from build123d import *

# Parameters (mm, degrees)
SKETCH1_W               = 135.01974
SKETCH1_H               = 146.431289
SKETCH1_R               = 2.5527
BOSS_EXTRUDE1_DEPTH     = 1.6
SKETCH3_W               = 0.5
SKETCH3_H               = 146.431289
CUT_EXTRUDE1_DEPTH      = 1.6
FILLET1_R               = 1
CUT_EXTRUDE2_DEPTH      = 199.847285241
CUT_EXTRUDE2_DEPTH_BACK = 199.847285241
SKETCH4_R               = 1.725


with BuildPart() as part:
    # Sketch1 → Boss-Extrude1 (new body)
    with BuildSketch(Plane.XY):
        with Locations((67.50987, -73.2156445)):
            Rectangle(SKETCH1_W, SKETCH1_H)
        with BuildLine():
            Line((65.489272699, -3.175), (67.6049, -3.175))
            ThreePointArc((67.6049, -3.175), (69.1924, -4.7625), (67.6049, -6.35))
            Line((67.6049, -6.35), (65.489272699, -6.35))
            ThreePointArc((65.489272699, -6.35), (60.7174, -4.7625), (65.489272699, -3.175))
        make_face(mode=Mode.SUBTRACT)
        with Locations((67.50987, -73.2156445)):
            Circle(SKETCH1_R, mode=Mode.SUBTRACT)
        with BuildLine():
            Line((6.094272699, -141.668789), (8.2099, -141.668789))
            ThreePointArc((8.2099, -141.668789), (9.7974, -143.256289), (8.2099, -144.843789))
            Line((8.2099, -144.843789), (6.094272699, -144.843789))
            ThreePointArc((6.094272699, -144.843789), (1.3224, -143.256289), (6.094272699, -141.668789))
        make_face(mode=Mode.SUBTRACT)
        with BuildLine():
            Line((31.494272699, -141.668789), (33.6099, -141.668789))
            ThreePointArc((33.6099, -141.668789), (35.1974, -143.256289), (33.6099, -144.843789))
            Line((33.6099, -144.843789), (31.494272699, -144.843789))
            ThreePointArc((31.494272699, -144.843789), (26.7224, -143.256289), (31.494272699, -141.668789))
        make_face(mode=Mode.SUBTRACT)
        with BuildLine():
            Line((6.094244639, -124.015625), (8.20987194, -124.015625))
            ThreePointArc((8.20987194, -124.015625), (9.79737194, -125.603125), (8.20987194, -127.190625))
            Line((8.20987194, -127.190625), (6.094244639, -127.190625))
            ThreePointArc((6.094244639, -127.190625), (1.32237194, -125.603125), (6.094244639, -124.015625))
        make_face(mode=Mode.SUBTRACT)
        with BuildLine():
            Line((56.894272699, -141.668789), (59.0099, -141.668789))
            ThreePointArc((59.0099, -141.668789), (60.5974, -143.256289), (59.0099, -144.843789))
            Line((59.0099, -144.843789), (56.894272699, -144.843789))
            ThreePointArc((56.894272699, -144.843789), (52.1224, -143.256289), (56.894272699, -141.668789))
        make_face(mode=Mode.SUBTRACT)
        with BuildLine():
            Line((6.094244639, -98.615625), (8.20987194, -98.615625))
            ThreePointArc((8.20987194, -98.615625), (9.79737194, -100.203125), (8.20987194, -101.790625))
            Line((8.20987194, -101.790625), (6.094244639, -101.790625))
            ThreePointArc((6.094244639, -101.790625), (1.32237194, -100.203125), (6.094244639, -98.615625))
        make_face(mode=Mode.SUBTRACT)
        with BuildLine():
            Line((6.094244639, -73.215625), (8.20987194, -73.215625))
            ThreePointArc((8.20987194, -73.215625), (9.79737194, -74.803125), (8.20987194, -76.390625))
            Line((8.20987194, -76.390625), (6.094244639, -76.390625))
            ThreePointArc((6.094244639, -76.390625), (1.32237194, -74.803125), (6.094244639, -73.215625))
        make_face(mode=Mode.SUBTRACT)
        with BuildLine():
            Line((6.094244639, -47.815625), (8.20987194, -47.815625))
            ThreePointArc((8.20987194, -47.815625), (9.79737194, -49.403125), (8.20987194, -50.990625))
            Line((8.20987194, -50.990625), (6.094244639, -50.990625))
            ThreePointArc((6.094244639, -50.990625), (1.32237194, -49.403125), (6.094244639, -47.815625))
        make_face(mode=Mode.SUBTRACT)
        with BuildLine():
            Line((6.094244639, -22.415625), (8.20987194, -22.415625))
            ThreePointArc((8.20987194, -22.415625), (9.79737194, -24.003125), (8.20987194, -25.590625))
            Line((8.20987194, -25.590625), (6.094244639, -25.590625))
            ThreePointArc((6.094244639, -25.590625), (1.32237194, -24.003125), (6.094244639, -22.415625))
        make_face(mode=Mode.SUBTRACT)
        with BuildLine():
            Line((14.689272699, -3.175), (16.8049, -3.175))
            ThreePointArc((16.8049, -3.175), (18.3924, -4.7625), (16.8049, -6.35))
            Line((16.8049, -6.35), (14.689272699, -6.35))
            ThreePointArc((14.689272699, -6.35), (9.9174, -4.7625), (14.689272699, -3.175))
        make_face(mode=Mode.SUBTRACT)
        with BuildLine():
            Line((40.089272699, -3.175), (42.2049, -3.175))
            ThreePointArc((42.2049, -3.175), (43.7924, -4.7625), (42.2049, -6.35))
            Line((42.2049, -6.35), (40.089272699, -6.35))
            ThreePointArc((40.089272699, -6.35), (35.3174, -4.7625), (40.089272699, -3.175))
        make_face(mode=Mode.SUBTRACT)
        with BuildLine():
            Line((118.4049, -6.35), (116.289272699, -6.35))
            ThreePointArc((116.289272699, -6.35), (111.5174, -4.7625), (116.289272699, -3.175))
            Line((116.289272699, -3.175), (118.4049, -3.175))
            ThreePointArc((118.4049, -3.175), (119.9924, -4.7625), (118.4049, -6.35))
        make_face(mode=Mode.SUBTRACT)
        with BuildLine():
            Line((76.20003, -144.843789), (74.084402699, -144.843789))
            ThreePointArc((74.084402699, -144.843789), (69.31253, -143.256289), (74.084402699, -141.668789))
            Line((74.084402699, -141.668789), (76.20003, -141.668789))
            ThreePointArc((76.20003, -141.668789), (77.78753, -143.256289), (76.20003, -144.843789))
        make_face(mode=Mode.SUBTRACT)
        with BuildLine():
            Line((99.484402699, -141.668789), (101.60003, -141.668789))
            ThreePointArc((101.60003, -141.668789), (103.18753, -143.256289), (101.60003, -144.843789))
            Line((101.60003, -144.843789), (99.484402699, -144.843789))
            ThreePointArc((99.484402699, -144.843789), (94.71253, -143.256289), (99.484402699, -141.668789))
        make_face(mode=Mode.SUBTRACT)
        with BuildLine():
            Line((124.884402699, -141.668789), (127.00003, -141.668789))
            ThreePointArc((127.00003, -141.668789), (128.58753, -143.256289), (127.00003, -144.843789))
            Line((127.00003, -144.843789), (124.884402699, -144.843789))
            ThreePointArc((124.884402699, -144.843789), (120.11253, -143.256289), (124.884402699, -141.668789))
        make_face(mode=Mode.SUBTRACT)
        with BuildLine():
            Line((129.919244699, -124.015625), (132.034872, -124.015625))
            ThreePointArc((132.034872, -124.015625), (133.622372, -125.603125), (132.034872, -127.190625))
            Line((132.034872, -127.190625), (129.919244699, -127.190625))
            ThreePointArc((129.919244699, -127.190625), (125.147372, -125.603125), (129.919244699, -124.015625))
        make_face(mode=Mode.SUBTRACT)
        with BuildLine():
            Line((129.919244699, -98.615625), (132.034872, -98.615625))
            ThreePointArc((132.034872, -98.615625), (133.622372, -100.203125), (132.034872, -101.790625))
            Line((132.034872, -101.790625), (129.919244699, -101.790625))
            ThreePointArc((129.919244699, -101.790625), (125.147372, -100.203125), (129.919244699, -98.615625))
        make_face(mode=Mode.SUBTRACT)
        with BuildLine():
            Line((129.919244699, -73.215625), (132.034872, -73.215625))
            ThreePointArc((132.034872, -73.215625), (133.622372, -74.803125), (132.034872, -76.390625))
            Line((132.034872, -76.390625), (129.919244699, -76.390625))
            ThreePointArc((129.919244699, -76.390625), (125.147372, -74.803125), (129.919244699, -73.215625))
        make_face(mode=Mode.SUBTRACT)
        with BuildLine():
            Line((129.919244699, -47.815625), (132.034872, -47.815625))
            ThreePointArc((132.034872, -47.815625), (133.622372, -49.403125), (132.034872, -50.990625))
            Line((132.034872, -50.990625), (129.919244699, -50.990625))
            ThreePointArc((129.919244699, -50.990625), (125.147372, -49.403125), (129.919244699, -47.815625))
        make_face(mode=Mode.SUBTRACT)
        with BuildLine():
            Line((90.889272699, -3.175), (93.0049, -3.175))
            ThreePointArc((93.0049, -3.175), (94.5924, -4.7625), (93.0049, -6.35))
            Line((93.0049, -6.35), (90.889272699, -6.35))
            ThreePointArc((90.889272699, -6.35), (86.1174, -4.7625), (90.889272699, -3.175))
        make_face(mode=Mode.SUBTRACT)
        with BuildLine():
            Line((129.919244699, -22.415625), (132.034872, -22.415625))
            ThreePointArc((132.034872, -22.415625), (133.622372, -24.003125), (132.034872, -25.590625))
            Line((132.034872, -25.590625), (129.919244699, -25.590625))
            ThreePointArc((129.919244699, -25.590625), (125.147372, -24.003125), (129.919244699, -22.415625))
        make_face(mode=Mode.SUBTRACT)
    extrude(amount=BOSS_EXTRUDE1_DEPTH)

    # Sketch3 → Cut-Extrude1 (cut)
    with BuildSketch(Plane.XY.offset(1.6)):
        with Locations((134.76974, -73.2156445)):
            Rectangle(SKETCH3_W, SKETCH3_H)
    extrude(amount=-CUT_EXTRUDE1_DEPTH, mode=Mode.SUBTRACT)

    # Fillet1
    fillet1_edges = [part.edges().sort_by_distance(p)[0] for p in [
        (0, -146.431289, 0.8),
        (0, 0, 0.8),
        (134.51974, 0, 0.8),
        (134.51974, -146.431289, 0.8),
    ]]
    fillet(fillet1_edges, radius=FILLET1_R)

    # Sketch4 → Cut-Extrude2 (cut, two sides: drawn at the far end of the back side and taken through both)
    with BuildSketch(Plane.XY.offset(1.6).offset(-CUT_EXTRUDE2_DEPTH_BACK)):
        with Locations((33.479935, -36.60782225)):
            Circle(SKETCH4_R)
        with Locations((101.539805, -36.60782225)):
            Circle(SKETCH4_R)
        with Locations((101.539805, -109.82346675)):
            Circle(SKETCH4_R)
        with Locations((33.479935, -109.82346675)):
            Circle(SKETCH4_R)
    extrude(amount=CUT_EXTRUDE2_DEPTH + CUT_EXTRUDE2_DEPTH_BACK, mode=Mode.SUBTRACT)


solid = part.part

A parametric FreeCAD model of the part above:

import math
import FreeCAD as App
import Part
import Sketcher


def edges_at(feature, points):
    """Names of the edges that pass closest to the given points."""
    edges = feature.Shape.Edges
    near = lambda p: min(range(len(edges)), key=lambda i: edges[i].distToShape(Part.Vertex(*p))[0])
    return sorted({f"Edge{near(p) + 1}" for p in points})


def add_polygon(sketch, points):
    """Adds a closed chain of lines whose ends are joined by coincident constraints."""
    first, n = sketch.GeometryCount, len(points)
    for a, b in zip(points, points[1:] + points[:1]):
        sketch.addGeometry(Part.LineSegment(App.Vector(*a, 0), App.Vector(*b, 0)), False)
    for i in range(n):
        sketch.addConstraint(Sketcher.Constraint("Coincident", first + i, 2, first + (i + 1) % n, 1))

doc = App.newDocument("Part")
body = doc.addObject("PartDesign::Body", "Body")

# Sketch on XY plane
sketch1 = body.newObject("Sketcher::SketchObject", "Sketch")
sketch1.AttachmentSupport = (doc.getObject("XY_Plane"), [""])
sketch1.MapMode = "FlatFace"
add_polygon(sketch1, [(0, 0), (0, -146.431289), (135.01974, -146.431289), (135.01974, 0)])  # lines 0-3
sketch1.addGeometry(Part.ArcOfCircle(Part.Circle(App.Vector(3.9724, -143.256289, 0), App.Vector(0, 0, 1), 2.65), math.radians(36.802362), math.radians(323.197638)), False)  # 4
sketch1.addGeometry(Part.LineSegment(App.Vector(6.094273, -141.668789, 0), App.Vector(8.2099, -141.668789, 0)), False)  # 5
sketch1.addGeometry(Part.ArcOfCircle(Part.Circle(App.Vector(8.2099, -143.256289, 0), App.Vector(0, 0, 1), 1.5875), math.radians(-90), math.radians(90)), False)  # 6
sketch1.addGeometry(Part.LineSegment(App.Vector(8.2099, -144.843789, 0), App.Vector(6.094273, -144.843789, 0)), False)  # 7
sketch1.addGeometry(Part.ArcOfCircle(Part.Circle(App.Vector(29.3724, -143.256289, 0), App.Vector(0, 0, 1), 2.65), math.radians(36.802362), math.radians(323.197638)), False)  # 8
sketch1.addGeometry(Part.LineSegment(App.Vector(31.494273, -141.668789, 0), App.Vector(33.6099, -141.668789, 0)), False)  # 9
sketch1.addGeometry(Part.ArcOfCircle(Part.Circle(App.Vector(33.6099, -143.256289, 0), App.Vector(0, 0, 1), 1.5875), math.radians(-90), math.radians(90)), False)  # 10
sketch1.addGeometry(Part.LineSegment(App.Vector(33.6099, -144.843789, 0), App.Vector(31.494273, -144.843789, 0)), False)  # 11
sketch1.addGeometry(Part.ArcOfCircle(Part.Circle(App.Vector(3.972372, -125.603125, 0), App.Vector(0, 0, 1), 2.65), math.radians(36.802362), math.radians(323.197638)), False)  # 12
sketch1.addGeometry(Part.LineSegment(App.Vector(6.094245, -124.015625, 0), App.Vector(8.209872, -124.015625, 0)), False)  # 13
sketch1.addGeometry(Part.ArcOfCircle(Part.Circle(App.Vector(8.209872, -125.603125, 0), App.Vector(0, 0, 1), 1.5875), math.radians(-90), math.radians(90)), False)  # 14
sketch1.addGeometry(Part.LineSegment(App.Vector(8.209872, -127.190625, 0), App.Vector(6.094245, -127.190625, 0)), False)  # 15
sketch1.addGeometry(Part.ArcOfCircle(Part.Circle(App.Vector(54.7724, -143.256289, 0), App.Vector(0, 0, 1), 2.65), math.radians(36.802362), math.radians(323.197638)), False)  # 16
sketch1.addGeometry(Part.LineSegment(App.Vector(56.894273, -141.668789, 0), App.Vector(59.0099, -141.668789, 0)), False)  # 17
sketch1.addGeometry(Part.ArcOfCircle(Part.Circle(App.Vector(59.0099, -143.256289, 0), App.Vector(0, 0, 1), 1.5875), math.radians(-90), math.radians(90)), False)  # 18
sketch1.addGeometry(Part.LineSegment(App.Vector(59.0099, -144.843789, 0), App.Vector(56.894273, -144.843789, 0)), False)  # 19
sketch1.addGeometry(Part.ArcOfCircle(Part.Circle(App.Vector(3.972372, -100.203125, 0), App.Vector(0, 0, 1), 2.65), math.radians(36.802362), math.radians(323.197638)), False)  # 20
sketch1.addGeometry(Part.LineSegment(App.Vector(6.094245, -98.615625, 0), App.Vector(8.209872, -98.615625, 0)), False)  # 21
sketch1.addGeometry(Part.ArcOfCircle(Part.Circle(App.Vector(8.209872, -100.203125, 0), App.Vector(0, 0, 1), 1.5875), math.radians(-90), math.radians(90)), False)  # 22
sketch1.addGeometry(Part.LineSegment(App.Vector(8.209872, -101.790625, 0), App.Vector(6.094245, -101.790625, 0)), False)  # 23
sketch1.addGeometry(Part.ArcOfCircle(Part.Circle(App.Vector(3.972372, -74.803125, 0), App.Vector(0, 0, 1), 2.65), math.radians(36.802362), math.radians(323.197638)), False)  # 24
sketch1.addGeometry(Part.LineSegment(App.Vector(6.094245, -73.215625, 0), App.Vector(8.209872, -73.215625, 0)), False)  # 25
sketch1.addGeometry(Part.ArcOfCircle(Part.Circle(App.Vector(8.209872, -74.803125, 0), App.Vector(0, 0, 1), 1.5875), math.radians(-90), math.radians(90)), False)  # 26
sketch1.addGeometry(Part.LineSegment(App.Vector(8.209872, -76.390625, 0), App.Vector(6.094245, -76.390625, 0)), False)  # 27
sketch1.addGeometry(Part.ArcOfCircle(Part.Circle(App.Vector(76.20003, -143.256289, 0), App.Vector(0, 0, 1), 1.5875), math.radians(-90), math.radians(90)), False)  # 28
sketch1.addGeometry(Part.LineSegment(App.Vector(76.20003, -144.843789, 0), App.Vector(74.084403, -144.843789, 0)), False)  # 29
sketch1.addGeometry(Part.ArcOfCircle(Part.Circle(App.Vector(71.96253, -143.256289, 0), App.Vector(0, 0, 1), 2.65), math.radians(36.802362), math.radians(323.197638)), False)  # 30
sketch1.addGeometry(Part.LineSegment(App.Vector(74.084403, -141.668789, 0), App.Vector(76.20003, -141.668789, 0)), False)  # 31
sketch1.addGeometry(Part.ArcOfCircle(Part.Circle(App.Vector(97.36253, -143.256289, 0), App.Vector(0, 0, 1), 2.65), math.radians(36.802362), math.radians(323.197638)), False)  # 32
sketch1.addGeometry(Part.LineSegment(App.Vector(99.484403, -141.668789, 0), App.Vector(101.60003, -141.668789, 0)), False)  # 33
sketch1.addGeometry(Part.ArcOfCircle(Part.Circle(App.Vector(101.60003, -143.256289, 0), App.Vector(0, 0, 1), 1.5875), math.radians(-90), math.radians(90)), False)  # 34
sketch1.addGeometry(Part.LineSegment(App.Vector(101.60003, -144.843789, 0), App.Vector(99.484403, -144.843789, 0)), False)  # 35
sketch1.addGeometry(Part.ArcOfCircle(Part.Circle(App.Vector(122.76253, -143.256289, 0), App.Vector(0, 0, 1), 2.65), math.radians(36.802362), math.radians(323.197638)), False)  # 36
sketch1.addGeometry(Part.LineSegment(App.Vector(124.884403, -141.668789, 0), App.Vector(127.00003, -141.668789, 0)), False)  # 37
sketch1.addGeometry(Part.ArcOfCircle(Part.Circle(App.Vector(127.00003, -143.256289, 0), App.Vector(0, 0, 1), 1.5875), math.radians(-90), math.radians(90)), False)  # 38
sketch1.addGeometry(Part.LineSegment(App.Vector(127.00003, -144.843789, 0), App.Vector(124.884403, -144.843789, 0)), False)  # 39
sketch1.addGeometry(Part.ArcOfCircle(Part.Circle(App.Vector(127.797372, -125.603125, 0), App.Vector(0, 0, 1), 2.65), math.radians(36.802362), math.radians(323.197638)), False)  # 40
sketch1.addGeometry(Part.LineSegment(App.Vector(129.919245, -124.015625, 0), App.Vector(132.034872, -124.015625, 0)), False)  # 41
sketch1.addGeometry(Part.ArcOfCircle(Part.Circle(App.Vector(132.034872, -125.603125, 0), App.Vector(0, 0, 1), 1.5875), math.radians(-90), math.radians(90)), False)  # 42
sketch1.addGeometry(Part.LineSegment(App.Vector(132.034872, -127.190625, 0), App.Vector(129.919245, -127.190625, 0)), False)  # 43
sketch1.addGeometry(Part.ArcOfCircle(Part.Circle(App.Vector(127.797372, -100.203125, 0), App.Vector(0, 0, 1), 2.65), math.radians(36.802362), math.radians(323.197638)), False)  # 44
sketch1.addGeometry(Part.LineSegment(App.Vector(129.919245, -98.615625, 0), App.Vector(132.034872, -98.615625, 0)), False)  # 45
sketch1.addGeometry(Part.ArcOfCircle(Part.Circle(App.Vector(132.034872, -100.203125, 0), App.Vector(0, 0, 1), 1.5875), math.radians(-90), math.radians(90)), False)  # 46
sketch1.addGeometry(Part.LineSegment(App.Vector(132.034872, -101.790625, 0), App.Vector(129.919245, -101.790625, 0)), False)  # 47
sketch1.addGeometry(Part.ArcOfCircle(Part.Circle(App.Vector(127.797372, -74.803125, 0), App.Vector(0, 0, 1), 2.65), math.radians(36.802362), math.radians(323.197638)), False)  # 48
sketch1.addGeometry(Part.LineSegment(App.Vector(129.919245, -73.215625, 0), App.Vector(132.034872, -73.215625, 0)), False)  # 49
sketch1.addGeometry(Part.ArcOfCircle(Part.Circle(App.Vector(132.034872, -74.803125, 0), App.Vector(0, 0, 1), 1.5875), math.radians(-90), math.radians(90)), False)  # 50
sketch1.addGeometry(Part.LineSegment(App.Vector(132.034872, -76.390625, 0), App.Vector(129.919245, -76.390625, 0)), False)  # 51
sketch1.addGeometry(Part.ArcOfCircle(Part.Circle(App.Vector(3.972372, -49.403125, 0), App.Vector(0, 0, 1), 2.65), math.radians(36.802362), math.radians(323.197638)), False)  # 52
sketch1.addGeometry(Part.LineSegment(App.Vector(6.094245, -47.815625, 0), App.Vector(8.209872, -47.815625, 0)), False)  # 53
sketch1.addGeometry(Part.ArcOfCircle(Part.Circle(App.Vector(8.209872, -49.403125, 0), App.Vector(0, 0, 1), 1.5875), math.radians(-90), math.radians(90)), False)  # 54
sketch1.addGeometry(Part.LineSegment(App.Vector(8.209872, -50.990625, 0), App.Vector(6.094245, -50.990625, 0)), False)  # 55
sketch1.addGeometry(Part.ArcOfCircle(Part.Circle(App.Vector(3.972372, -24.003125, 0), App.Vector(0, 0, 1), 2.65), math.radians(36.802362), math.radians(323.197638)), False)  # 56
sketch1.addGeometry(Part.LineSegment(App.Vector(6.094245, -22.415625, 0), App.Vector(8.209872, -22.415625, 0)), False)  # 57
sketch1.addGeometry(Part.ArcOfCircle(Part.Circle(App.Vector(8.209872, -24.003125, 0), App.Vector(0, 0, 1), 1.5875), math.radians(-90), math.radians(90)), False)  # 58
sketch1.addGeometry(Part.LineSegment(App.Vector(8.209872, -25.590625, 0), App.Vector(6.094245, -25.590625, 0)), False)  # 59
sketch1.addGeometry(Part.ArcOfCircle(Part.Circle(App.Vector(12.5674, -4.7625, 0), App.Vector(0, 0, 1), 2.65), math.radians(36.802362), math.radians(323.197638)), False)  # 60
sketch1.addGeometry(Part.LineSegment(App.Vector(14.689273, -3.175, 0), App.Vector(16.8049, -3.175, 0)), False)  # 61
sketch1.addGeometry(Part.ArcOfCircle(Part.Circle(App.Vector(16.8049, -4.7625, 0), App.Vector(0, 0, 1), 1.5875), math.radians(-90), math.radians(90)), False)  # 62
sketch1.addGeometry(Part.LineSegment(App.Vector(16.8049, -6.35, 0), App.Vector(14.689273, -6.35, 0)), False)  # 63
sketch1.addGeometry(Part.ArcOfCircle(Part.Circle(App.Vector(37.9674, -4.7625, 0), App.Vector(0, 0, 1), 2.65), math.radians(36.802362), math.radians(323.197638)), False)  # 64
sketch1.addGeometry(Part.LineSegment(App.Vector(40.089273, -3.175, 0), App.Vector(42.2049, -3.175, 0)), False)  # 65
sketch1.addGeometry(Part.ArcOfCircle(Part.Circle(App.Vector(42.2049, -4.7625, 0), App.Vector(0, 0, 1), 1.5875), math.radians(-90), math.radians(90)), False)  # 66
sketch1.addGeometry(Part.LineSegment(App.Vector(42.2049, -6.35, 0), App.Vector(40.089273, -6.35, 0)), False)  # 67
sketch1.addGeometry(Part.ArcOfCircle(Part.Circle(App.Vector(63.3674, -4.7625, 0), App.Vector(0, 0, 1), 2.65), math.radians(36.802362), math.radians(323.197638)), False)  # 68
sketch1.addGeometry(Part.LineSegment(App.Vector(65.489273, -3.175, 0), App.Vector(67.6049, -3.175, 0)), False)  # 69
sketch1.addGeometry(Part.ArcOfCircle(Part.Circle(App.Vector(67.6049, -4.7625, 0), App.Vector(0, 0, 1), 1.5875), math.radians(-90), math.radians(90)), False)  # 70
sketch1.addGeometry(Part.LineSegment(App.Vector(67.6049, -6.35, 0), App.Vector(65.489273, -6.35, 0)), False)  # 71
sketch1.addGeometry(Part.Circle(App.Vector(67.50987, -73.215644, 0), App.Vector(0, 0, 1), 2.5527), False)  # 72
sketch1.addGeometry(Part.ArcOfCircle(Part.Circle(App.Vector(127.797372, -49.403125, 0), App.Vector(0, 0, 1), 2.65), math.radians(36.802362), math.radians(323.197638)), False)  # 73
sketch1.addGeometry(Part.LineSegment(App.Vector(129.919245, -47.815625, 0), App.Vector(132.034872, -47.815625, 0)), False)  # 74
sketch1.addGeometry(Part.ArcOfCircle(Part.Circle(App.Vector(132.034872, -49.403125, 0), App.Vector(0, 0, 1), 1.5875), math.radians(-90), math.radians(90)), False)  # 75
sketch1.addGeometry(Part.LineSegment(App.Vector(132.034872, -50.990625, 0), App.Vector(129.919245, -50.990625, 0)), False)  # 76
sketch1.addGeometry(Part.ArcOfCircle(Part.Circle(App.Vector(88.7674, -4.7625, 0), App.Vector(0, 0, 1), 2.65), math.radians(36.802362), math.radians(323.197638)), False)  # 77
sketch1.addGeometry(Part.LineSegment(App.Vector(90.889273, -3.175, 0), App.Vector(93.0049, -3.175, 0)), False)  # 78
sketch1.addGeometry(Part.ArcOfCircle(Part.Circle(App.Vector(93.0049, -4.7625, 0), App.Vector(0, 0, 1), 1.5875), math.radians(-90), math.radians(90)), False)  # 79
sketch1.addGeometry(Part.LineSegment(App.Vector(93.0049, -6.35, 0), App.Vector(90.889273, -6.35, 0)), False)  # 80
sketch1.addGeometry(Part.ArcOfCircle(Part.Circle(App.Vector(127.797372, -24.003125, 0), App.Vector(0, 0, 1), 2.65), math.radians(36.802362), math.radians(323.197638)), False)  # 81
sketch1.addGeometry(Part.LineSegment(App.Vector(129.919245, -22.415625, 0), App.Vector(132.034872, -22.415625, 0)), False)  # 82
sketch1.addGeometry(Part.ArcOfCircle(Part.Circle(App.Vector(132.034872, -24.003125, 0), App.Vector(0, 0, 1), 1.5875), math.radians(-90), math.radians(90)), False)  # 83
sketch1.addGeometry(Part.LineSegment(App.Vector(132.034872, -25.590625, 0), App.Vector(129.919245, -25.590625, 0)), False)  # 84
sketch1.addGeometry(Part.ArcOfCircle(Part.Circle(App.Vector(118.4049, -4.7625, 0), App.Vector(0, 0, 1), 1.5875), math.radians(-90), math.radians(90)), False)  # 85
sketch1.addGeometry(Part.LineSegment(App.Vector(118.4049, -6.35, 0), App.Vector(116.289273, -6.35, 0)), False)  # 86
sketch1.addGeometry(Part.ArcOfCircle(Part.Circle(App.Vector(114.1674, -4.7625, 0), App.Vector(0, 0, 1), 2.65), math.radians(36.802362), math.radians(323.197638)), False)  # 87
sketch1.addGeometry(Part.LineSegment(App.Vector(116.289273, -3.175, 0), App.Vector(118.4049, -3.175, 0)), False)  # 88
sketch1.addConstraint([
    Sketcher.Constraint("Coincident", 4, 1, 5, 1),
    Sketcher.Constraint("Tangent", 5, 2, 6, 2),
    Sketcher.Constraint("Tangent", 6, 1, 7, 1),
    Sketcher.Constraint("Coincident", 7, 2, 4, 2),
    Sketcher.Constraint("Coincident", 8, 1, 9, 1),
    Sketcher.Constraint("Tangent", 9, 2, 10, 2),
    Sketcher.Constraint("Tangent", 10, 1, 11, 1),
    Sketcher.Constraint("Coincident", 11, 2, 8, 2),
    Sketcher.Constraint("Coincident", 12, 1, 13, 1),
    Sketcher.Constraint("Tangent", 13, 2, 14, 2),
    Sketcher.Constraint("Tangent", 14, 1, 15, 1),
    Sketcher.Constraint("Coincident", 15, 2, 12, 2),
    Sketcher.Constraint("Coincident", 16, 1, 17, 1),
    Sketcher.Constraint("Tangent", 17, 2, 18, 2),
    Sketcher.Constraint("Tangent", 18, 1, 19, 1),
    Sketcher.Constraint("Coincident", 19, 2, 16, 2),
    Sketcher.Constraint("Coincident", 20, 1, 21, 1),
    Sketcher.Constraint("Tangent", 21, 2, 22, 2),
    Sketcher.Constraint("Tangent", 22, 1, 23, 1),
    Sketcher.Constraint("Coincident", 23, 2, 20, 2),
    Sketcher.Constraint("Coincident", 24, 1, 25, 1),
    Sketcher.Constraint("Tangent", 25, 2, 26, 2),
    Sketcher.Constraint("Tangent", 26, 1, 27, 1),
    Sketcher.Constraint("Coincident", 27, 2, 24, 2),
    Sketcher.Constraint("Tangent", 28, 1, 29, 1),
    Sketcher.Constraint("Coincident", 29, 2, 30, 2),
    Sketcher.Constraint("Coincident", 30, 1, 31, 1),
    Sketcher.Constraint("Tangent", 31, 2, 28, 2),
    Sketcher.Constraint("Coincident", 32, 1, 33, 1),
    Sketcher.Constraint("Tangent", 33, 2, 34, 2),
    Sketcher.Constraint("Tangent", 34, 1, 35, 1),
    Sketcher.Constraint("Coincident", 35, 2, 32, 2),
    Sketcher.Constraint("Coincident", 36, 1, 37, 1),
    Sketcher.Constraint("Tangent", 37, 2, 38, 2),
    Sketcher.Constraint("Tangent", 38, 1, 39, 1),
    Sketcher.Constraint("Coincident", 39, 2, 36, 2),
    Sketcher.Constraint("Coincident", 40, 1, 41, 1),
    Sketcher.Constraint("Tangent", 41, 2, 42, 2),
    Sketcher.Constraint("Tangent", 42, 1, 43, 1),
    Sketcher.Constraint("Coincident", 43, 2, 40, 2),
    Sketcher.Constraint("Coincident", 44, 1, 45, 1),
    Sketcher.Constraint("Tangent", 45, 2, 46, 2),
    Sketcher.Constraint("Tangent", 46, 1, 47, 1),
    Sketcher.Constraint("Coincident", 47, 2, 44, 2),
    Sketcher.Constraint("Coincident", 48, 1, 49, 1),
    Sketcher.Constraint("Tangent", 49, 2, 50, 2),
    Sketcher.Constraint("Tangent", 50, 1, 51, 1),
    Sketcher.Constraint("Coincident", 51, 2, 48, 2),
    Sketcher.Constraint("Coincident", 52, 1, 53, 1),
    Sketcher.Constraint("Tangent", 53, 2, 54, 2),
    Sketcher.Constraint("Tangent", 54, 1, 55, 1),
    Sketcher.Constraint("Coincident", 55, 2, 52, 2),
    Sketcher.Constraint("Coincident", 56, 1, 57, 1),
    Sketcher.Constraint("Tangent", 57, 2, 58, 2),
    Sketcher.Constraint("Tangent", 58, 1, 59, 1),
    Sketcher.Constraint("Coincident", 59, 2, 56, 2),
    Sketcher.Constraint("Coincident", 60, 1, 61, 1),
    Sketcher.Constraint("Tangent", 61, 2, 62, 2),
    Sketcher.Constraint("Tangent", 62, 1, 63, 1),
    Sketcher.Constraint("Coincident", 63, 2, 60, 2),
    Sketcher.Constraint("Coincident", 64, 1, 65, 1),
    Sketcher.Constraint("Tangent", 65, 2, 66, 2),
    Sketcher.Constraint("Tangent", 66, 1, 67, 1),
    Sketcher.Constraint("Coincident", 67, 2, 64, 2),
    Sketcher.Constraint("Coincident", 68, 1, 69, 1),
    Sketcher.Constraint("Tangent", 69, 2, 70, 2),
    Sketcher.Constraint("Tangent", 70, 1, 71, 1),
    Sketcher.Constraint("Coincident", 71, 2, 68, 2),
    Sketcher.Constraint("Coincident", 73, 1, 74, 1),
    Sketcher.Constraint("Tangent", 74, 2, 75, 2),
    Sketcher.Constraint("Tangent", 75, 1, 76, 1),
    Sketcher.Constraint("Coincident", 76, 2, 73, 2),
    Sketcher.Constraint("Coincident", 77, 1, 78, 1),
    Sketcher.Constraint("Tangent", 78, 2, 79, 2),
    Sketcher.Constraint("Tangent", 79, 1, 80, 1),
    Sketcher.Constraint("Coincident", 80, 2, 77, 2),
    Sketcher.Constraint("Coincident", 81, 1, 82, 1),
    Sketcher.Constraint("Tangent", 82, 2, 83, 2),
    Sketcher.Constraint("Tangent", 83, 1, 84, 1),
    Sketcher.Constraint("Coincident", 84, 2, 81, 2),
    Sketcher.Constraint("Tangent", 85, 1, 86, 1),
    Sketcher.Constraint("Coincident", 86, 2, 87, 2),
    Sketcher.Constraint("Coincident", 87, 1, 88, 1),
    Sketcher.Constraint("Tangent", 88, 2, 85, 2),
    Sketcher.Constraint("Vertical", 0),
    Sketcher.Constraint("Horizontal", 1),
    Sketcher.Constraint("Vertical", 2),
    Sketcher.Constraint("Horizontal", 3),
    Sketcher.Constraint("Horizontal", 5),
    Sketcher.Constraint("Horizontal", 7),
    Sketcher.Constraint("Horizontal", 9),
    Sketcher.Constraint("Horizontal", 11),
    Sketcher.Constraint("Horizontal", 13),
    Sketcher.Constraint("Horizontal", 15),
    Sketcher.Constraint("Horizontal", 17),
    Sketcher.Constraint("Horizontal", 19),
    Sketcher.Constraint("Horizontal", 21),
    Sketcher.Constraint("Horizontal", 23),
    Sketcher.Constraint("Horizontal", 25),
    Sketcher.Constraint("Horizontal", 27),
    Sketcher.Constraint("Horizontal", 29),
    Sketcher.Constraint("Horizontal", 31),
    Sketcher.Constraint("Horizontal", 33),
    Sketcher.Constraint("Horizontal", 35),
    Sketcher.Constraint("Horizontal", 37),
    Sketcher.Constraint("Horizontal", 39),
    Sketcher.Constraint("Horizontal", 41),
    Sketcher.Constraint("Horizontal", 43),
    Sketcher.Constraint("Horizontal", 45),
    Sketcher.Constraint("Horizontal", 47),
    Sketcher.Constraint("Horizontal", 49),
    Sketcher.Constraint("Horizontal", 51),
    Sketcher.Constraint("Horizontal", 53),
    Sketcher.Constraint("Horizontal", 55),
    Sketcher.Constraint("Horizontal", 57),
    Sketcher.Constraint("Horizontal", 59),
    Sketcher.Constraint("Horizontal", 61),
    Sketcher.Constraint("Horizontal", 63),
    Sketcher.Constraint("Horizontal", 65),
    Sketcher.Constraint("Horizontal", 67),
    Sketcher.Constraint("Horizontal", 69),
    Sketcher.Constraint("Horizontal", 71),
    Sketcher.Constraint("Horizontal", 74),
    Sketcher.Constraint("Horizontal", 76),
    Sketcher.Constraint("Horizontal", 78),
    Sketcher.Constraint("Horizontal", 80),
    Sketcher.Constraint("Horizontal", 82),
    Sketcher.Constraint("Horizontal", 84),
    Sketcher.Constraint("Horizontal", 86),
    Sketcher.Constraint("Horizontal", 88),
    Sketcher.Constraint("Coincident", 3, 2, -1, 1),
    Sketcher.Constraint("Equal", 4, 8),
    Sketcher.Constraint("Equal", 6, 10),
    Sketcher.Constraint("Equal", 8, 12),
    Sketcher.Constraint("Equal", 10, 14),
    Sketcher.Constraint("Equal", 12, 16),
    Sketcher.Constraint("Equal", 14, 18),
    Sketcher.Constraint("Equal", 16, 20),
    Sketcher.Constraint("Equal", 18, 22),
    Sketcher.Constraint("Equal", 20, 24),
    Sketcher.Constraint("Equal", 22, 26),
    Sketcher.Constraint("Equal", 26, 28),
    Sketcher.Constraint("Equal", 24, 30),
    Sketcher.Constraint("Equal", 30, 32),
    Sketcher.Constraint("Equal", 28, 34),
    Sketcher.Constraint("Equal", 32, 36),
    Sketcher.Constraint("Equal", 34, 38),
    Sketcher.Constraint("Equal", 36, 40),
    Sketcher.Constraint("Equal", 38, 42),
    Sketcher.Constraint("Equal", 40, 44),
    Sketcher.Constraint("Equal", 42, 46),
    Sketcher.Constraint("Equal", 44, 48),
    Sketcher.Constraint("Equal", 46, 50),
    Sketcher.Constraint("Equal", 48, 52),
    Sketcher.Constraint("Equal", 50, 54),
    Sketcher.Constraint("Equal", 52, 56),
    Sketcher.Constraint("Equal", 54, 58),
    Sketcher.Constraint("Equal", 56, 60),
    Sketcher.Constraint("Equal", 58, 62),
    Sketcher.Constraint("Equal", 60, 64),
    Sketcher.Constraint("Equal", 62, 66),
    Sketcher.Constraint("Equal", 64, 68),
    Sketcher.Constraint("Equal", 66, 70),
    Sketcher.Constraint("Equal", 68, 73),
    Sketcher.Constraint("Equal", 70, 75),
    Sketcher.Constraint("Equal", 73, 77),
    Sketcher.Constraint("Equal", 75, 79),
    Sketcher.Constraint("Equal", 77, 81),
    Sketcher.Constraint("Equal", 79, 83),
    Sketcher.Constraint("Equal", 83, 85),
    Sketcher.Constraint("Equal", 81, 87),
    Sketcher.Constraint("Horizontal", 4, 3, 6, 3),
    Sketcher.Constraint("Horizontal", 6, 3, 8, 3),
    Sketcher.Constraint("Horizontal", 8, 3, 10, 3),
    Sketcher.Constraint("Horizontal", 12, 3, 14, 3),
    Sketcher.Constraint("Horizontal", 10, 3, 16, 3),
    Sketcher.Constraint("Horizontal", 16, 3, 18, 3),
    Sketcher.Constraint("Horizontal", 20, 3, 22, 3),
    Sketcher.Constraint("Horizontal", 24, 3, 26, 3),
    Sketcher.Constraint("Horizontal", 18, 3, 28, 3),
    Sketcher.Constraint("Horizontal", 28, 3, 30, 3),
    Sketcher.Constraint("Horizontal", 30, 3, 32, 3),
    Sketcher.Constraint("Horizontal", 32, 3, 34, 3),
    Sketcher.Constraint("Horizontal", 34, 3, 36, 3),
    Sketcher.Constraint("Horizontal", 36, 3, 38, 3),
    Sketcher.Constraint("Horizontal", 14, 3, 40, 3),
    Sketcher.Constraint("Horizontal", 40, 3, 42, 3),
    Sketcher.Constraint("Horizontal", 22, 3, 44, 3),
    Sketcher.Constraint("Horizontal", 44, 3, 46, 3),
    Sketcher.Constraint("Horizontal", 26, 3, 48, 3),
    Sketcher.Constraint("Horizontal", 48, 3, 50, 3),
    Sketcher.Constraint("Horizontal", 52, 3, 54, 3),
    Sketcher.Constraint("Horizontal", 56, 3, 58, 3),
    Sketcher.Constraint("Horizontal", 60, 3, 62, 3),
    Sketcher.Constraint("Horizontal", 62, 3, 64, 3),
    Sketcher.Constraint("Horizontal", 64, 3, 66, 3),
    Sketcher.Constraint("Horizontal", 66, 3, 68, 3),
    Sketcher.Constraint("Horizontal", 68, 3, 70, 3),
    Sketcher.Constraint("Horizontal", 54, 3, 73, 3),
    Sketcher.Constraint("Horizontal", 73, 3, 75, 3),
    Sketcher.Constraint("Horizontal", 70, 3, 77, 3),
    Sketcher.Constraint("Horizontal", 77, 3, 79, 3),
    Sketcher.Constraint("Horizontal", 58, 3, 81, 3),
    Sketcher.Constraint("Horizontal", 81, 3, 83, 3),
    Sketcher.Constraint("Horizontal", 79, 3, 85, 3),
    Sketcher.Constraint("Horizontal", 85, 3, 87, 3),
    Sketcher.Constraint("Vertical", 12, 3, 20, 3),
    Sketcher.Constraint("Vertical", 14, 3, 22, 3),
    Sketcher.Constraint("Vertical", 20, 3, 24, 3),
    Sketcher.Constraint("Vertical", 22, 3, 26, 3),
    Sketcher.Constraint("Vertical", 40, 3, 44, 3),
    Sketcher.Constraint("Vertical", 42, 3, 46, 3),
    Sketcher.Constraint("Vertical", 44, 3, 48, 3),
    Sketcher.Constraint("Vertical", 46, 3, 50, 3),
    Sketcher.Constraint("Vertical", 24, 3, 52, 3),
    Sketcher.Constraint("Vertical", 26, 3, 54, 3),
    Sketcher.Constraint("Vertical", 52, 3, 56, 3),
    Sketcher.Constraint("Vertical", 54, 3, 58, 3),
    Sketcher.Constraint("Vertical", 48, 3, 73, 3),
    Sketcher.Constraint("Vertical", 50, 3, 75, 3),
    Sketcher.Constraint("Vertical", 73, 3, 81, 3),
    Sketcher.Constraint("Vertical", 75, 3, 83, 3),
    Sketcher.Constraint("Equal", 7, 9),
    Sketcher.Constraint("Equal", 11, 13),
    Sketcher.Constraint("Equal", 15, 17),
    Sketcher.Constraint("Equal", 27, 29),
    Sketcher.Constraint("Equal", 31, 33),
    Sketcher.Constraint("Equal", 35, 37),
    Sketcher.Constraint("Equal", 39, 41),
    Sketcher.Constraint("Equal", 59, 61),
    Sketcher.Constraint("Equal", 63, 65),
    Sketcher.Constraint("Equal", 67, 69),
    Sketcher.Constraint("Equal", 76, 78),
    Sketcher.Constraint("Equal", 84, 86),
    Sketcher.Constraint("Radius", 4, 2.65),
    Sketcher.Constraint("Diameter", 72, 5.1054),
    Sketcher.Constraint("Radius", 6, 1.5875),
    Sketcher.Constraint("DistanceY", 62, 1, -1, 1, 6.35),
    Sketcher.Constraint("DistanceX", 1, 1, 1, 2, 135.01974),
    Sketcher.Constraint("DistanceY", 0, 2, 0, 1, 146.431289),
    Sketcher.Constraint("DistanceX", -1, 1, 4, 3, 3.9724),
    Sketcher.Constraint("DistanceX", -1, 1, 6, 3, 8.2099),
    Sketcher.Constraint("DistanceX", -1, 1, 8, 3, 29.3724),
    Sketcher.Constraint("DistanceX", -1, 1, 16, 3, 54.7724),
    Sketcher.Constraint("DistanceX", -1, 1, 60, 3, 12.5674),
    Sketcher.Constraint("DistanceX", -1, 1, 64, 3, 37.9674),
    Sketcher.Constraint("DistanceX", -1, 1, 68, 3, 63.3674),
    Sketcher.Constraint("DistanceX", -1, 1, 77, 3, 88.7674),
    Sketcher.Constraint("DistanceX", -1, 1, 85, 3, 118.4049),
    Sketcher.Constraint("DistanceY", 4, 3, -1, 1, 143.256289),
    Sketcher.Constraint("DistanceX", -1, 1, 12, 3, 3.972372),
    Sketcher.Constraint("DistanceX", -1, 1, 28, 3, 76.20003),
    Sketcher.Constraint("DistanceX", -1, 1, 32, 3, 97.36253),
    Sketcher.Constraint("DistanceX", -1, 1, 36, 3, 122.76253),
    Sketcher.Constraint("DistanceX", -1, 1, 40, 3, 127.797372),
    Sketcher.Constraint("DistanceX", -1, 1, 72, 3, 67.50987),
    Sketcher.Constraint("DistanceY", 12, 3, -1, 1, 125.603125),
    Sketcher.Constraint("DistanceY", 20, 3, -1, 1, 100.203125),
    Sketcher.Constraint("DistanceY", 24, 3, -1, 1, 74.803125),
    Sketcher.Constraint("DistanceY", 52, 3, -1, 1, 49.403125),
    Sketcher.Constraint("DistanceY", 56, 3, -1, 1, 24.003125),
    Sketcher.Constraint("DistanceY", 72, 3, -1, 1, 73.215644),
])
pad1 = body.newObject("PartDesign::Pad", "Pad")
pad1.Profile = sketch1
pad1.Length = 1.6

# Sketch on XY plane
sketch2 = body.newObject("Sketcher::SketchObject", "Sketch001")
sketch2.AttachmentSupport = (doc.getObject("XY_Plane"), [""])
sketch2.MapMode = "FlatFace"
sketch2.AttachmentOffset = App.Placement(App.Vector(0, 0, 1.6), App.Rotation())
add_polygon(sketch2, [(134.51974, 0), (134.51974, -146.431289), (135.01974, -146.431289), (135.01974, 0)])  # lines 0-3
sketch2.addConstraint([
    Sketcher.Constraint("Vertical", 0),
    Sketcher.Constraint("Horizontal", 1),
    Sketcher.Constraint("Vertical", 2),
    Sketcher.Constraint("Horizontal", 3),
    Sketcher.Constraint("PointOnObject", 2, 2, -1),
    Sketcher.Constraint("DistanceX", 1, 1, 1, 2, 0.5),
    Sketcher.Constraint("DistanceY", 0, 2, 0, 1, 146.431289),
    Sketcher.Constraint("DistanceX", -1, 1, 0, 2, 134.51974),
])
pocket1 = body.newObject("PartDesign::Pocket", "Pocket")
pocket1.Profile = sketch2
pocket1.Length = 1.6
doc.recompute()

fillet = body.newObject("PartDesign::Fillet", "Fillet")
fillet.Base = (pocket1, edges_at(pocket1, [
    (0, -146.431, 0.8),
    (0, 0, 0.8),
    (134.52, 0, 0.8),
    (134.52, -146.431, 0.8),
]))
fillet.Radius = 1

# Sketch on XY plane
sketch3 = body.newObject("Sketcher::SketchObject", "Sketch002")
sketch3.AttachmentSupport = (doc.getObject("XY_Plane"), [""])
sketch3.MapMode = "FlatFace"
sketch3.AttachmentOffset = App.Placement(App.Vector(0, 0, 1.6), App.Rotation())
sketch3.addGeometry([
    Part.Circle(App.Vector(33.479935, -36.607822, 0), App.Vector(0, 0, 1), 1.725),
    Part.Circle(App.Vector(101.539805, -36.607822, 0), App.Vector(0, 0, 1), 1.725),
    Part.Circle(App.Vector(101.539805, -109.823467, 0), App.Vector(0, 0, 1), 1.725),
    Part.Circle(App.Vector(33.479935, -109.823467, 0), App.Vector(0, 0, 1), 1.725),
], False)
sketch3.addConstraint([
    Sketcher.Constraint("Equal", 0, 1),
    Sketcher.Constraint("Equal", 1, 2),
    Sketcher.Constraint("Equal", 2, 3),
    Sketcher.Constraint("Horizontal", 0, 3, 1, 3),
    Sketcher.Constraint("Horizontal", 2, 3, 3, 3),
    Sketcher.Constraint("Vertical", 1, 3, 2, 3),
    Sketcher.Constraint("Vertical", 0, 3, 3, 3),
    Sketcher.Constraint("Diameter", 0, 3.45),
    Sketcher.Constraint("DistanceX", 0, 3, 1, 3, 68.05987),
    Sketcher.Constraint("DistanceX", -1, 1, 0, 3, 33.479935),
    Sketcher.Constraint("DistanceY", 0, 3, -1, 1, 36.607822),
    Sketcher.Constraint("DistanceY", 2, 3, -1, 1, 109.823467),
])
pocket2 = body.newObject("PartDesign::Pocket", "Pocket001")
pocket2.Profile = sketch3
pocket2.Type = "ThroughAll"
pocket2.Midplane = True

doc.recompute()
